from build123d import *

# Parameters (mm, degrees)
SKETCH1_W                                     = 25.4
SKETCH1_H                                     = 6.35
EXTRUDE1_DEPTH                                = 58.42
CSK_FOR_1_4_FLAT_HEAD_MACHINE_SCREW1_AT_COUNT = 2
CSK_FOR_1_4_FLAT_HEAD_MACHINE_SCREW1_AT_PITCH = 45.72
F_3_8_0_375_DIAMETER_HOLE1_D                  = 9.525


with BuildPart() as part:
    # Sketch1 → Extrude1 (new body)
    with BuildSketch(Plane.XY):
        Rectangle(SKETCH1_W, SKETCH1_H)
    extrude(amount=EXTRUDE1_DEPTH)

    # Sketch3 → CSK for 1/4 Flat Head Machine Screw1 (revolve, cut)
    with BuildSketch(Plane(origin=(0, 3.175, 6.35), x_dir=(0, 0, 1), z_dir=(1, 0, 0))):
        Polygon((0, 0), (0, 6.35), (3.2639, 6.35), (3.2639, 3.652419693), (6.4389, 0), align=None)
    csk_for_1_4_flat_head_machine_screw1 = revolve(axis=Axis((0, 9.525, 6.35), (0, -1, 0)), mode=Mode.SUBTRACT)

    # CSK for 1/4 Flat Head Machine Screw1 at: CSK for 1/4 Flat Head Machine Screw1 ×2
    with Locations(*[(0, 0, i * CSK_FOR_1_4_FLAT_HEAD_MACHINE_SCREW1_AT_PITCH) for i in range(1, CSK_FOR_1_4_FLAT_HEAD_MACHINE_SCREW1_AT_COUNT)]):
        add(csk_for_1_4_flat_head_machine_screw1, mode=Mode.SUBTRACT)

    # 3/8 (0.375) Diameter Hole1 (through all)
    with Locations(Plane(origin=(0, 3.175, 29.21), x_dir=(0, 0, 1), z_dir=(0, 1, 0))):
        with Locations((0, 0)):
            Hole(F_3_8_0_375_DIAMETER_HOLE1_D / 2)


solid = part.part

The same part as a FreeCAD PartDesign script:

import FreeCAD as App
import Part
import Sketcher

V = App.Vector
Q = App.Units.Quantity

doc = App.newDocument("Part")
body = doc.addObject("PartDesign::Body", "Body")

# Sketch on XY plane
sketch1 = doc.addObject("Sketcher::SketchObject", "Sketch")
body.addObject(sketch1)
sketch1.AttachmentSupport = (doc.XY_Plane, [""])
sketch1.MapMode = "FlatFace"
sketch1.addGeometry([
    Part.LineSegment(V(-13, 3, 0), V(-13, -3, 0)),
    Part.LineSegment(V(-13, -3, 0), V(13, -3, 0)),
    Part.LineSegment(V(13, -3, 0), V(13, 3, 0)),
    Part.LineSegment(V(13, 3, 0), V(-13, 3, 0)),
], False)
sketch1.addConstraint([
    Sketcher.Constraint("Coincident", 0, 2, 1, 1),
    Sketcher.Constraint("Coincident", 1, 2, 2, 1),
    Sketcher.Constraint("Coincident", 2, 2, 3, 1),
    Sketcher.Constraint("Coincident", 3, 2, 0, 1),
    Sketcher.Constraint("Vertical", 0),
    Sketcher.Constraint("Horizontal", 1),
    Sketcher.Constraint("Vertical", 2),
    Sketcher.Constraint("Horizontal", 3),
    Sketcher.Constraint("Symmetric", 0, 2, 2, 2, -1, 1),
    Sketcher.Constraint("DistanceX", 1, 1, 1, 2, Q("1 in")),
    Sketcher.Constraint("DistanceY", 0, 2, 0, 1, Q("0.25 in")),
])
pad1 = doc.addObject("PartDesign::Pad", "Pad")
body.addObject(pad1)
pad1.Profile = sketch1
pad1.Length = Q("2.3 in")

# Sketch on YZ plane
sketch2 = doc.addObject("Sketcher::SketchObject", "Sketch001")
body.addObject(sketch2)
sketch2.AttachmentSupport = (doc.YZ_Plane, [""])
sketch2.MapMode = "FlatFace"
sketch2.addGeometry([
    Part.LineSegment(V(-3.2, 6.3, 0), V(3.2, 6.3, 0)),  # 0
    Part.LineSegment(V(3.2, 6.3, 0), V(3.2, 12.8, 0)),  # 1
    Part.LineSegment(V(3.2, 12.8, 0), V(-0.5, 9.6, 0)),  # 2
    Part.LineSegment(V(-0.5, 9.6, 0), V(-3.2, 9.6, 0)),  # 3
    Part.LineSegment(V(-3.2, 9.6, 0), V(-3.2, 6.3, 0)),  # 4
], False)
sketch2.addGeometry(Part.LineSegment(V(3.2, 6.3, 0), V(-3.2, 6.3, 0)), True)  # axis
sketch2.addConstraint([
    Sketcher.Constraint("Coincident", 0, 2, 1, 1),
    Sketcher.Constraint("Coincident", 1, 2, 2, 1),
    Sketcher.Constraint("Coincident", 2, 2, 3, 1),
    Sketcher.Constraint("Coincident", 3, 2, 4, 1),
    Sketcher.Constraint("Coincident", 4, 2, 0, 1),
    Sketcher.Constraint("Horizontal", 0),
    Sketcher.Constraint("Vertical", 1),
    Sketcher.Constraint("Horizontal", 3),
    Sketcher.Constraint("Vertical", 4),
    Sketcher.Constraint("Horizontal", 5),
    Sketcher.Constraint("Coincident", 5, 1, 0, 2),
    Sketcher.Constraint("Vertical", 3, 2, 5, 2),
    Sketcher.Constraint("Angle", 2, Q("-139 deg")),
    Sketcher.Constraint("DistanceX", 0, 1, 0, 2, Q("0.25 in")),
    Sketcher.Constraint("DistanceY", -1, 1, 0, 2, Q("0.25 in")),
    Sketcher.Constraint("DistanceY", 1, 1, 1, 2, Q("0.2535 in")),
    Sketcher.Constraint("DistanceY", 4, 2, 4, 1, Q("0.1285 in")),
    Sketcher.Constraint("DistanceX", -1, 1, 0, 2, Q("0.125 in")),
])
groove = doc.addObject("PartDesign::Groove", "Groove")
body.addObject(groove)
groove.Profile = sketch2
groove.ReferenceAxis = (sketch2, ["Axis0"])
groove.Angle = 360
doc.recompute()

linearpattern = doc.addObject("PartDesign::LinearPattern", "LinearPattern")
body.addObject(linearpattern)
linearpattern.Originals = [groove]
linearpattern.Direction = (doc.Z_Axis, [""])
linearpattern.Mode = "offset"
linearpattern.Offset = Q("1.8 in")
linearpattern.Occurrences = 2
body.Tip = linearpattern

# Sketch on XZ plane
sketch3 = doc.addObject("Sketcher::SketchObject", "Sketch002")
body.addObject(sketch3)
sketch3.AttachmentSupport = (doc.XZ_Plane, [""])
sketch3.MapMode = "FlatFace"
sketch3.AttachmentOffset = App.Placement(V(0, 0, -0.125 * 25.4), App.Rotation())
sketch3.addGeometry(Part.Circle(V(0, 29.2, 0), V(0, 0, 1), 4.8), False)
sketch3.addConstraint([
    Sketcher.Constraint("PointOnObject", 0, 3, -2),
    Sketcher.Constraint("Diameter", 0, Q("0.375 in")),
    Sketcher.Constraint("DistanceY", -1, 1, 0, 3, Q("1.15 in")),
])
doc.recompute()
hole = doc.addObject("PartDesign::Hole", "Hole")
body.addObject(hole)
hole.Profile = sketch3
hole.ThreadType = "None"
hole.Diameter = Q("0.375 in")
hole.DepthType = "ThroughAll"
hole.Reversed = True

doc.recompute()
